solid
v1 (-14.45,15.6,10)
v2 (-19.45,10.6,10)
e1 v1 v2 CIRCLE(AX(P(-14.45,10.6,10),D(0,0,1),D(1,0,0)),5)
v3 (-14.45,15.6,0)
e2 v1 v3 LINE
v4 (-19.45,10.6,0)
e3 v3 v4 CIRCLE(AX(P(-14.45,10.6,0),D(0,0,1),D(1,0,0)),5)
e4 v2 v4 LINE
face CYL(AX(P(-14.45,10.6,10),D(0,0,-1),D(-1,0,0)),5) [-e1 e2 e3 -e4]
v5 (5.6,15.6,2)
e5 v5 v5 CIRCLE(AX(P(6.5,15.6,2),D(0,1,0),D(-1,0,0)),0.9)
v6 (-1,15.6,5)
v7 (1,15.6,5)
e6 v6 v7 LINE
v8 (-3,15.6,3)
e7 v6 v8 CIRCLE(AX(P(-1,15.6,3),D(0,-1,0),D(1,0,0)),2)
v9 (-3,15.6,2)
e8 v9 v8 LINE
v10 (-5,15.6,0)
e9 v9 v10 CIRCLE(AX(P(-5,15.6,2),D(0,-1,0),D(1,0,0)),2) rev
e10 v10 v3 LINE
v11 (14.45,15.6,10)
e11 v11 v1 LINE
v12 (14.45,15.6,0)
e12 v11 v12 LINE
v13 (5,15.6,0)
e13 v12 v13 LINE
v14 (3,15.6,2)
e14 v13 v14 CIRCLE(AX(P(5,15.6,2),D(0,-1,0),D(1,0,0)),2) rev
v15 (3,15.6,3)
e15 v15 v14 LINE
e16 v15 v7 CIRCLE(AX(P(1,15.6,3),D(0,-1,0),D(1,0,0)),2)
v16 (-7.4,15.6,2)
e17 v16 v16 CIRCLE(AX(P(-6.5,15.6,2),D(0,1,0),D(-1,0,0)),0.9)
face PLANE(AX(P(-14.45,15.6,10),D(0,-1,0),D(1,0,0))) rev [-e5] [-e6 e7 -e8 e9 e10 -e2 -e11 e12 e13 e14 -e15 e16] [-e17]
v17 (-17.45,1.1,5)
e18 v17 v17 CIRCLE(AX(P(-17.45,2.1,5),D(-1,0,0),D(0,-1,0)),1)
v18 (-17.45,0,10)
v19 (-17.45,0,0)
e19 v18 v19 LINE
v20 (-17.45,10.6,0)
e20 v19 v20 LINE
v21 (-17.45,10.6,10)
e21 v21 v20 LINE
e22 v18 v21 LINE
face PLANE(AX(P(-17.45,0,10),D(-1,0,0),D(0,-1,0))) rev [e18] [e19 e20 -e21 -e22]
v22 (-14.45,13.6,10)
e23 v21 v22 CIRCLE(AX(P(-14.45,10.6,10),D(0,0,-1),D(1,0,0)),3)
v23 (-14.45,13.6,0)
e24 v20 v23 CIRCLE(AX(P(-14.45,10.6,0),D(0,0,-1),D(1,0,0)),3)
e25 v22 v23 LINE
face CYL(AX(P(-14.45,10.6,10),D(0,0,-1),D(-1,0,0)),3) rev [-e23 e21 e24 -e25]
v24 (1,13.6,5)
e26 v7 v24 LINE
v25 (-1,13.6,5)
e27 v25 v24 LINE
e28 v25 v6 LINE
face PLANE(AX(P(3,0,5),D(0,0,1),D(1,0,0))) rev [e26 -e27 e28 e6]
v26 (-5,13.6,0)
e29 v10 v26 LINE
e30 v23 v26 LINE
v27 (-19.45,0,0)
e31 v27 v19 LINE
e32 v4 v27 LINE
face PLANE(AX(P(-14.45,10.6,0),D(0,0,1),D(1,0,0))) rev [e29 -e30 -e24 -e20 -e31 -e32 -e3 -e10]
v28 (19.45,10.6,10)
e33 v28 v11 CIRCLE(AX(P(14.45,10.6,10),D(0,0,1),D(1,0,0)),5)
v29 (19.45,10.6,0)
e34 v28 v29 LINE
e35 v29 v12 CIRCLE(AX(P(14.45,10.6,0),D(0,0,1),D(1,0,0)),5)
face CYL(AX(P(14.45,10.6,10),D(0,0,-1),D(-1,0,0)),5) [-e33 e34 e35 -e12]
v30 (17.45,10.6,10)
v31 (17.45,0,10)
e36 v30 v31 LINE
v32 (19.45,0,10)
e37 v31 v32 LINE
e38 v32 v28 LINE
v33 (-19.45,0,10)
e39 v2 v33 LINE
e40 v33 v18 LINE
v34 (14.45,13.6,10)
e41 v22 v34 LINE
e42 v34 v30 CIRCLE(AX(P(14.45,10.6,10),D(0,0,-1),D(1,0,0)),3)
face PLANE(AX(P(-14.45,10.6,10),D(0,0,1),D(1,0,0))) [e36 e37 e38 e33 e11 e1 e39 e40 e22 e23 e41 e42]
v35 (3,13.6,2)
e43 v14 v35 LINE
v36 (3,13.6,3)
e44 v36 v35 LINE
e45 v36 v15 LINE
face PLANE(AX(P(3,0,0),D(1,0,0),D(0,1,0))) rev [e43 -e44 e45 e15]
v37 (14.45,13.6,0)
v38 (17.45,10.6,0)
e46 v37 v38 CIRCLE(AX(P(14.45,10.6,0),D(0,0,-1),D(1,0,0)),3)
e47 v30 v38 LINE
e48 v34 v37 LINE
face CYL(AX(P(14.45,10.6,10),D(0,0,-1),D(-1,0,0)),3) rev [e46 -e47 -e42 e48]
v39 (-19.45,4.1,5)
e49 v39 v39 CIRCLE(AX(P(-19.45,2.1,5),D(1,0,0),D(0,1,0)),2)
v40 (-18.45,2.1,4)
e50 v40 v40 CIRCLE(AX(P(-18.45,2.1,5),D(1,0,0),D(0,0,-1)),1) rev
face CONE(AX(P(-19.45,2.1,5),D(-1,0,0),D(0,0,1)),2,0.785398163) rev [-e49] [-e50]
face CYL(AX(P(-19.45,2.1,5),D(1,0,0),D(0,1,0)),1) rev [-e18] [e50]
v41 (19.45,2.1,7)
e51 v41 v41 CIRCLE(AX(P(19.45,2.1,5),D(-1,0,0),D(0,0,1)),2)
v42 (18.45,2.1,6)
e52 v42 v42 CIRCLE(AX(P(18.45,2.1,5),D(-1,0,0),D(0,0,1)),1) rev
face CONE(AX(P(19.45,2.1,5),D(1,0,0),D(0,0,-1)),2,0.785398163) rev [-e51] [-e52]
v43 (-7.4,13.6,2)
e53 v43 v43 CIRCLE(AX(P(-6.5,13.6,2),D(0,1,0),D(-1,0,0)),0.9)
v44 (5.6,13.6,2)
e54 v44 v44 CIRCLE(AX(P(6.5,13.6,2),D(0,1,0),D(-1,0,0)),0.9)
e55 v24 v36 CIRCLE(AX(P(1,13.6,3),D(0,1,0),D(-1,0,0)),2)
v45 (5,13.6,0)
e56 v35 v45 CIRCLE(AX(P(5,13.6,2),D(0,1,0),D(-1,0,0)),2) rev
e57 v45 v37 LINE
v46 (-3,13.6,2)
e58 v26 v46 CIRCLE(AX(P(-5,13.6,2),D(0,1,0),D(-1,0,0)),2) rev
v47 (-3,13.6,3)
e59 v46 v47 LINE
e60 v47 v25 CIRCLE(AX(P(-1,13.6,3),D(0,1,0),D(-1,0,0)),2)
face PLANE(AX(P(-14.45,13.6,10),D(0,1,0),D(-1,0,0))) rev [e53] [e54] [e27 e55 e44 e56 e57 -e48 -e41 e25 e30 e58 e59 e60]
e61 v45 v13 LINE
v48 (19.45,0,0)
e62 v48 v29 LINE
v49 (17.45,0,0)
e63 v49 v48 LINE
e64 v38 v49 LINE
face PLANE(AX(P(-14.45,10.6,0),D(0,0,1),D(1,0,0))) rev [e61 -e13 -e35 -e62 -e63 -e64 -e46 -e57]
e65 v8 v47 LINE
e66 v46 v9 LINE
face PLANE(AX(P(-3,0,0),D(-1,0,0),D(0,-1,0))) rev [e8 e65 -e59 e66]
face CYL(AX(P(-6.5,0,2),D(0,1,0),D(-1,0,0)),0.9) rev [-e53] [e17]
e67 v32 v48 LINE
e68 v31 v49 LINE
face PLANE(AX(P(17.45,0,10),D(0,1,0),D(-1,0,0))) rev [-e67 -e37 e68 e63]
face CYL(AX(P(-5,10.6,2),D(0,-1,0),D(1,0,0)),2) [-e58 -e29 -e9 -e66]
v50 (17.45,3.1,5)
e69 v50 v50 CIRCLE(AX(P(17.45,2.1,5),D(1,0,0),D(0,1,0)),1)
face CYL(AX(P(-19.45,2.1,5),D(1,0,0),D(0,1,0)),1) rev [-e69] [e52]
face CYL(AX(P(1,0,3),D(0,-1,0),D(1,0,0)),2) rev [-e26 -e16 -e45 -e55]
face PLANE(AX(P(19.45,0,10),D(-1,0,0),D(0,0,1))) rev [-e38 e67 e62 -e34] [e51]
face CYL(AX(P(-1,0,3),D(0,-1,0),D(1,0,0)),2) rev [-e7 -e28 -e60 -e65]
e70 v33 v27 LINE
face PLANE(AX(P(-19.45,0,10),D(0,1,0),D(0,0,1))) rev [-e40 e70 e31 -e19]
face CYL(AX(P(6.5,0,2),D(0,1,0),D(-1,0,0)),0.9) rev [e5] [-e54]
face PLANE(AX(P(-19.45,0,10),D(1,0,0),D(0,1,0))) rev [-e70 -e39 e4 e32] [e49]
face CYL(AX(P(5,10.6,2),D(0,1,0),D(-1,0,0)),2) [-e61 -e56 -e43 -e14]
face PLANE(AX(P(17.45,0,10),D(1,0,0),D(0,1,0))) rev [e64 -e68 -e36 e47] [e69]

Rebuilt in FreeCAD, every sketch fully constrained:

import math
import FreeCAD as App
import Part
import Sketcher
from FreeCAD import Vector
Q = App.Units.Quantity


def edges_at(feature, points):
    """Names of the edges that pass closest to the given points."""
    edges = feature.Shape.Edges
    near = lambda p: min(range(len(edges)), key=lambda i: edges[i].distToShape(Part.Vertex(*p))[0])
    return sorted({f"Edge{near(p) + 1}" for p in points})

doc = App.newDocument("Part")
body = doc.addObject("PartDesign::Body", "Body")

# Sketch on XY plane
sketch1 = body.newObject("Sketcher::SketchObject", "Sketch")
sketch1.AttachmentSupport = (doc.getObject("XY_Plane"), [""])
sketch1.MapMode = "FlatFace"
sketch1.addGeometry(Part.LineSegment(Vector(17.45, 0, 0), Vector(19.45, 0, 0)), False)
sketch1.addGeometry(Part.LineSegment(Vector(19.45, 0, 0), Vector(19.45, 10.6, 0)), False)
sketch1.addGeometry(Part.ArcOfCircle(Part.Circle(Vector(14.45, 10.6, 0), Vector(0, 0, 1), 5), math.radians(0), math.radians(90)), False)
sketch1.addGeometry(Part.LineSegment(Vector(14.45, 15.6, 0), Vector(-14.45, 15.6, 0)), False)
sketch1.addGeometry(Part.ArcOfCircle(Part.Circle(Vector(-14.45, 10.6, 0), Vector(0, 0, 1), 5), math.radians(90), math.radians(180)), False)
sketch1.addGeometry(Part.LineSegment(Vector(-19.45, 10.6, 0), Vector(-19.45, 0, 0)), False)
sketch1.addGeometry(Part.LineSegment(Vector(-19.45, 0, 0), Vector(-17.45, 0, 0)), False)
sketch1.addGeometry(Part.LineSegment(Vector(-17.45, 0, 0), Vector(-17.45, 10.6, 0)), False)
sketch1.addGeometry(Part.ArcOfCircle(Part.Circle(Vector(-14.45, 10.6, 0), Vector(0, 0, 1), 3), math.radians(90), math.radians(180)), False)
sketch1.addGeometry(Part.LineSegment(Vector(-14.45, 13.6, 0), Vector(14.45, 13.6, 0)), False)
sketch1.addGeometry(Part.ArcOfCircle(Part.Circle(Vector(14.45, 10.6, 0), Vector(0, 0, 1), 3), math.radians(0), math.radians(90)), False)
sketch1.addGeometry(Part.LineSegment(Vector(17.45, 10.6, 0), Vector(17.45, 0, 0)), False)
sketch1.addConstraint(Sketcher.Constraint("Coincident", 0, 2, 1, 1))
sketch1.addConstraint(Sketcher.Constraint("Tangent", 1, 2, 2, 1))
sketch1.addConstraint(Sketcher.Constraint("Tangent", 2, 2, 3, 1))
sketch1.addConstraint(Sketcher.Constraint("Tangent", 3, 2, 4, 1))
sketch1.addConstraint(Sketcher.Constraint("Tangent", 4, 2, 5, 1))
sketch1.addConstraint(Sketcher.Constraint("Coincident", 5, 2, 6, 1))
sketch1.addConstraint(Sketcher.Constraint("Coincident", 6, 2, 7, 1))
sketch1.addConstraint(Sketcher.Constraint("Tangent", 7, 2, 8, 2))
sketch1.addConstraint(Sketcher.Constraint("Tangent", 8, 1, 9, 1))
sketch1.addConstraint(Sketcher.Constraint("Tangent", 9, 2, 10, 2))
sketch1.addConstraint(Sketcher.Constraint("Tangent", 10, 1, 11, 1))
sketch1.addConstraint(Sketcher.Constraint("Coincident", 11, 2, 0, 1))
sketch1.addConstraint(Sketcher.Constraint("Horizontal", 0))
sketch1.addConstraint(Sketcher.Constraint("Vertical", 1))
sketch1.addConstraint(Sketcher.Constraint("Horizontal", 3))
sketch1.addConstraint(Sketcher.Constraint("Vertical", 5))
sketch1.addConstraint(Sketcher.Constraint("Horizontal", 6))
sketch1.addConstraint(Sketcher.Constraint("Vertical", 7))
sketch1.addConstraint(Sketcher.Constraint("Horizontal", 9))
sketch1.addConstraint(Sketcher.Constraint("Vertical", 11))
sketch1.addConstraint(Sketcher.Constraint("Coincident", 8, 3, 4, 3))
sketch1.addConstraint(Sketcher.Constraint("Coincident", 10, 3, 2, 3))
sketch1.addConstraint(Sketcher.Constraint("Equal", 2, 4))
sketch1.addConstraint(Sketcher.Constraint("Symmetric", 0, 2, 5, 2, -1, 1))
sketch1.addConstraint(Sketcher.Constraint("PointOnObject", 0, 2, -1))
sketch1.addConstraint(Sketcher.Constraint("Radius", 2, Q("5 mm")))
sketch1.addConstraint(Sketcher.Constraint("Radius", 8, Q("3 mm")))
sketch1.addConstraint(Sketcher.Constraint("DistanceX", 3, 2, 3, 1, Q("28.9 mm")))
sketch1.addConstraint(Sketcher.Constraint("DistanceY", 1, 1, 1, 2, Q("10.6 mm")))
pad1 = body.newObject("PartDesign::Pad", "Pad")
pad1.Profile = sketch1
pad1.Length = 10

# Sketch on YZ plane
sketch2 = body.newObject("Sketcher::SketchObject", "Sketch001")
sketch2.AttachmentSupport = (doc.getObject("YZ_Plane"), [""])
sketch2.MapMode = "FlatFace"
sketch2.AttachmentOffset = App.Placement(Vector(0, 0, 19.45), App.Rotation())
sketch2.addGeometry(Part.Circle(Vector(2.1, 5, 0), Vector(0, 0, 1), 1), False)
sketch2.addConstraint(Sketcher.Constraint("Diameter", 0, Q("2 mm")))
sketch2.addConstraint(Sketcher.Constraint("DistanceY", -1, 1, 0, 3, Q("5 mm")))
sketch2.addConstraint(Sketcher.Constraint("DistanceX", -1, 1, 0, 3, Q("2.1 mm")))
pocket1 = body.newObject("PartDesign::Pocket", "Pocket")
pocket1.Profile = sketch2
pocket1.Type = "ThroughAll"
pocket1.Midplane = True
doc.recompute()

chamfer = body.newObject("PartDesign::Chamfer", "Chamfer")
chamfer.Base = (pocket1, edges_at(pocket1, [(-19.45, 2.1, 6), (19.45, 2.1, 6)]))
chamfer.Size = 1

# Sketch on XZ plane
sketch3 = body.newObject("Sketcher::SketchObject", "Sketch002")
sketch3.AttachmentSupport = (doc.getObject("XZ_Plane"), [""])
sketch3.MapMode = "FlatFace"
sketch3.AttachmentOffset = App.Placement(Vector(0, 0, -15.6), App.Rotation())
sketch3.addGeometry(Part.Circle(Vector(-6.5, 2, 0), Vector(0, 0, 1), 0.9), False)
sketch3.addGeometry(Part.Circle(Vector(6.5, 2, 0), Vector(0, 0, 1), 0.9), False)
sketch3.addGeometry(Part.LineSegment(Vector(-3, 0, 0), Vector(-3, 5, 0)), False)
sketch3.addGeometry(Part.LineSegment(Vector(-3, 5, 0), Vector(3, 5, 0)), False)
sketch3.addGeometry(Part.LineSegment(Vector(3, 5, 0), Vector(3, 0, 0)), False)
sketch3.addGeometry(Part.LineSegment(Vector(3, 0, 0), Vector(-3, 0, 0)), False)
sketch3.addConstraint(Sketcher.Constraint("Coincident", 2, 2, 3, 1))
sketch3.addConstraint(Sketcher.Constraint("Coincident", 3, 2, 4, 1))
sketch3.addConstraint(Sketcher.Constraint("Coincident", 4, 2, 5, 1))
sketch3.addConstraint(Sketcher.Constraint("Coincident", 5, 2, 2, 1))
sketch3.addConstraint(Sketcher.Constraint("Vertical", 2))
sketch3.addConstraint(Sketcher.Constraint("Horizontal", 3))
sketch3.addConstraint(Sketcher.Constraint("Vertical", 4))
sketch3.addConstraint(Sketcher.Constraint("Horizontal", 5))
sketch3.addConstraint(Sketcher.Constraint("Equal", 0, 1))
sketch3.addConstraint(Sketcher.Constraint("Symmetric", 4, 2, 5, 2, -1, 1))
sketch3.addConstraint(Sketcher.Constraint("Symmetric", 0, 3, 1, 3, -2))
sketch3.addConstraint(Sketcher.Constraint("Diameter", 0, Q("1.8 mm")))
sketch3.addConstraint(Sketcher.Constraint("DistanceX", 3, 1, 3, 2, Q("6 mm")))
sketch3.addConstraint(Sketcher.Constraint("DistanceY", 2, 1, 2, 2, Q("5 mm")))
sketch3.addConstraint(Sketcher.Constraint("DistanceY", -1, 1, 0, 3, Q("2 mm")))
sketch3.addConstraint(Sketcher.Constraint("DistanceX", 0, 3, 1, 3, Q("13 mm")))
pocket2 = body.newObject("PartDesign::Pocket", "Pocket001")
pocket2.Profile = sketch3
pocket2.Type = "ThroughAll"
pocket2.Reversed = True
doc.recompute()

fillet = body.newObject("PartDesign::Fillet", "Fillet")
fillet.Base = (pocket2, edges_at(pocket2, [
    (-3, 14.6, 0),
    (3, 14.6, 0),
    (3, 14.6, 5),
    (-3, 14.6, 5),
]))
fillet.Radius = 2

doc.recompute()
